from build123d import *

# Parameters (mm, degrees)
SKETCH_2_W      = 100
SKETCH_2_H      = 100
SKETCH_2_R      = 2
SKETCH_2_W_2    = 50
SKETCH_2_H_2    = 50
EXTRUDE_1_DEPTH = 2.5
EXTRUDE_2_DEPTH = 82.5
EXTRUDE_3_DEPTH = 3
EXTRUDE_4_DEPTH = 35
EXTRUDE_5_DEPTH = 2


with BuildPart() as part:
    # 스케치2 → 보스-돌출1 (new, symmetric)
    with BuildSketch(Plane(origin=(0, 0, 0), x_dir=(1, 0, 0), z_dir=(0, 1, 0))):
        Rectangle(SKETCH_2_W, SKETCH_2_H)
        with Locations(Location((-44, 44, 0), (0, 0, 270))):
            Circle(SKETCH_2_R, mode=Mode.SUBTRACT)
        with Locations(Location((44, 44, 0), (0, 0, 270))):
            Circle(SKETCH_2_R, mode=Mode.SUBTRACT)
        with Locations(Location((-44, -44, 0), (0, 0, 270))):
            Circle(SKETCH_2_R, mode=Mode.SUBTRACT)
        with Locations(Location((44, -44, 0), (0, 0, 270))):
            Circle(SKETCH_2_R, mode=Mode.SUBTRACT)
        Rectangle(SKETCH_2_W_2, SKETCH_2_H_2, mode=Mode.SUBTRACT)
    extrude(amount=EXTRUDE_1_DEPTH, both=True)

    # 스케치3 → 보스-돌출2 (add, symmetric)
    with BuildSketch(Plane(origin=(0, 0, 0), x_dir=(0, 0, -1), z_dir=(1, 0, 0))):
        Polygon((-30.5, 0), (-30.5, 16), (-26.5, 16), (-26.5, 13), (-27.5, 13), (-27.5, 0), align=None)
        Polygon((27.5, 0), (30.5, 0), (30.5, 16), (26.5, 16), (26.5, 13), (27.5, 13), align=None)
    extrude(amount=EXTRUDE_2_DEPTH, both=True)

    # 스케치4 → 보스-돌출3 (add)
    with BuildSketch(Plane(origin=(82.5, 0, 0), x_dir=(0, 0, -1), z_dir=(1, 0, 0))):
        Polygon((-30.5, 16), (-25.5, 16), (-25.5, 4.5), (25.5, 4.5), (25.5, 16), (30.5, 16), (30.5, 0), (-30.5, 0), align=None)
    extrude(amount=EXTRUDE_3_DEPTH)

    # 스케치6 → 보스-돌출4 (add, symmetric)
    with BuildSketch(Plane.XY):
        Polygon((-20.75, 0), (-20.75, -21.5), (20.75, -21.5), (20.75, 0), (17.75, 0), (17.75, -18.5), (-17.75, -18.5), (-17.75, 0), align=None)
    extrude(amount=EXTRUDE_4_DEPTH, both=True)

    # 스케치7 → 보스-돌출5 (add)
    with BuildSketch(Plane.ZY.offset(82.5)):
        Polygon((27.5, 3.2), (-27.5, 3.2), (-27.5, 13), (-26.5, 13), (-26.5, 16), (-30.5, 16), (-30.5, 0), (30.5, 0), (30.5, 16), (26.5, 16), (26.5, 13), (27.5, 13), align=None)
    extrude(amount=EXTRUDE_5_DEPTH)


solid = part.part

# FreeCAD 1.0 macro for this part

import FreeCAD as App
import Part
import Sketcher
from FreeCAD import Vector

doc = App.newDocument("Part")
body = doc.addObject("PartDesign::Body", "Body")

# Sketch on XZ plane
sketch1 = body.newObject("Sketcher::SketchObject", "Sketch")
sketch1.AttachmentSupport = (doc.getObject("XZ_Plane"), [""])
sketch1.MapMode = "FlatFace"
sketch1.addGeometry(Part.LineSegment(Vector(-50, -50, 0), Vector(-50, 50, 0)), False)
sketch1.addGeometry(Part.LineSegment(Vector(-50, 50, 0), Vector(50, 50, 0)), False)
sketch1.addGeometry(Part.LineSegment(Vector(50, 50, 0), Vector(50, -50, 0)), False)
sketch1.addGeometry(Part.LineSegment(Vector(50, -50, 0), Vector(-50, -50, 0)), False)
sketch1.addGeometry(Part.Circle(Vector(-44, 44, 0), Vector(0, 0, 1), 2), False)
sketch1.addGeometry(Part.Circle(Vector(44, 44, 0), Vector(0, 0, 1), 2), False)
sketch1.addGeometry(Part.Circle(Vector(-44, -44, 0), Vector(0, 0, 1), 2), False)
sketch1.addGeometry(Part.LineSegment(Vector(25, 25, 0), Vector(-25, 25, 0)), False)
sketch1.addGeometry(Part.LineSegment(Vector(-25, 25, 0), Vector(-25, -25, 0)), False)
sketch1.addGeometry(Part.LineSegment(Vector(-25, -25, 0), Vector(25, -25, 0)), False)
sketch1.addGeometry(Part.LineSegment(Vector(25, -25, 0), Vector(25, 25, 0)), False)
sketch1.addGeometry(Part.Circle(Vector(44, -44, 0), Vector(0, 0, 1), 2), False)
sketch1.addConstraint(Sketcher.Constraint("Coincident", 0, 2, 1, 1))
sketch1.addConstraint(Sketcher.Constraint("Coincident", 1, 2, 2, 1))
sketch1.addConstraint(Sketcher.Constraint("Coincident", 2, 2, 3, 1))
sketch1.addConstraint(Sketcher.Constraint("Coincident", 3, 2, 0, 1))
sketch1.addConstraint(Sketcher.Constraint("Coincident", 7, 2, 8, 1))
sketch1.addConstraint(Sketcher.Constraint("Coincident", 8, 2, 9, 1))
sketch1.addConstraint(Sketcher.Constraint("Coincident", 9, 2, 10, 1))
sketch1.addConstraint(Sketcher.Constraint("Coincident", 10, 2, 7, 1))
sketch1.addConstraint(Sketcher.Constraint("Vertical", 0))
sketch1.addConstraint(Sketcher.Constraint("Horizontal", 1))
sketch1.addConstraint(Sketcher.Constraint("Vertical", 2))
sketch1.addConstraint(Sketcher.Constraint("Horizontal", 3))
sketch1.addConstraint(Sketcher.Constraint("Horizontal", 7))
sketch1.addConstraint(Sketcher.Constraint("Vertical", 8))
sketch1.addConstraint(Sketcher.Constraint("Horizontal", 9))
sketch1.addConstraint(Sketcher.Constraint("Vertical", 10))
sketch1.addConstraint(Sketcher.Constraint("Equal", 4, 5))
sketch1.addConstraint(Sketcher.Constraint("Equal", 5, 6))
sketch1.addConstraint(Sketcher.Constraint("Equal", 6, 11))
sketch1.addConstraint(Sketcher.Constraint("Symmetric", 5, 3, 6, 3, -1, 1))
sketch1.addConstraint(Sketcher.Constraint("Symmetric", 4, 3, 11, 3, -1, 1))
sketch1.addConstraint(Sketcher.Constraint("Symmetric", 0, 2, 2, 2, -1, 1))
sketch1.addConstraint(Sketcher.Constraint("Symmetric", 7, 2, 9, 2, -1, 1))
sketch1.addConstraint(Sketcher.Constraint("Symmetric", 4, 3, 5, 3, -2))
sketch1.addConstraint(Sketcher.Constraint("Equal", 3, 0))
sketch1.addConstraint(Sketcher.Constraint("Equal", 9, 8))
sketch1.addConstraint(Sketcher.Constraint("Diameter", 4, 4.0))
sketch1.addConstraint(Sketcher.Constraint("DistanceX", 1, 1, 1, 2, 100.0))
sketch1.addConstraint(Sketcher.Constraint("DistanceX", 7, 2, 7, 1, 50.0))
sketch1.addConstraint(Sketcher.Constraint("DistanceX", 4, 3, -1, 1, 44.0))
sketch1.addConstraint(Sketcher.Constraint("DistanceY", -1, 1, 4, 3, 44.0))
pad1 = body.newObject("PartDesign::Pad", "Pad")
pad1.Profile = sketch1
pad1.Length = 5
pad1.Midplane = True

# Sketch on YZ plane
sketch2 = body.newObject("Sketcher::SketchObject", "Sketch001")
sketch2.AttachmentSupport = (doc.getObject("YZ_Plane"), [""])
sketch2.MapMode = "FlatFace"
sketch2.addGeometry(Part.LineSegment(Vector(16, 30.5, 0), Vector(0, 30.5, 0)), False)
sketch2.addGeometry(Part.LineSegment(Vector(0, 30.5, 0), Vector(0, 27.5, 0)), False)
sketch2.addGeometry(Part.LineSegment(Vector(0, 27.5, 0), Vector(13, 27.5, 0)), False)
sketch2.addGeometry(Part.LineSegment(Vector(13, 27.5, 0), Vector(13, 26.5, 0)), False)
sketch2.addGeometry(Part.LineSegment(Vector(13, 26.5, 0), Vector(16, 26.5, 0)), False)
sketch2.addGeometry(Part.LineSegment(Vector(16, 26.5, 0), Vector(16, 30.5, 0)), False)
sketch2.addGeometry(Part.LineSegment(Vector(0, -27.5, 0), Vector(0, -30.5, 0)), False)
sketch2.addGeometry(Part.LineSegment(Vector(0, -30.5, 0), Vector(16, -30.5, 0)), False)
sketch2.addGeometry(Part.LineSegment(Vector(16, -30.5, 0), Vector(16, -26.5, 0)), False)
sketch2.addGeometry(Part.LineSegment(Vector(16, -26.5, 0), Vector(13, -26.5, 0)), False)
sketch2.addGeometry(Part.LineSegment(Vector(13, -26.5, 0), Vector(13, -27.5, 0)), False)
sketch2.addGeometry(Part.LineSegment(Vector(13, -27.5, 0), Vector(0, -27.5, 0)), False)
sketch2.addConstraint(Sketcher.Constraint("Coincident", 0, 2, 1, 1))
sketch2.addConstraint(Sketcher.Constraint("Coincident", 1, 2, 2, 1))
sketch2.addConstraint(Sketcher.Constraint("Coincident", 2, 2, 3, 1))
sketch2.addConstraint(Sketcher.Constraint("Coincident", 3, 2, 4, 1))
sketch2.addConstraint(Sketcher.Constraint("Coincident", 4, 2, 5, 1))
sketch2.addConstraint(Sketcher.Constraint("Coincident", 5, 2, 0, 1))
sketch2.addConstraint(Sketcher.Constraint("Coincident", 6, 2, 7, 1))
sketch2.addConstraint(Sketcher.Constraint("Coincident", 7, 2, 8, 1))
sketch2.addConstraint(Sketcher.Constraint("Coincident", 8, 2, 9, 1))
sketch2.addConstraint(Sketcher.Constraint("Coincident", 9, 2, 10, 1))
sketch2.addConstraint(Sketcher.Constraint("Coincident", 10, 2, 11, 1))
sketch2.addConstraint(Sketcher.Constraint("Coincident", 11, 2, 6, 1))
sketch2.addConstraint(Sketcher.Constraint("Horizontal", 0))
sketch2.addConstraint(Sketcher.Constraint("Vertical", 1))
sketch2.addConstraint(Sketcher.Constraint("Horizontal", 2))
sketch2.addConstraint(Sketcher.Constraint("Vertical", 3))
sketch2.addConstraint(Sketcher.Constraint("Horizontal", 4))
sketch2.addConstraint(Sketcher.Constraint("Vertical", 5))
sketch2.addConstraint(Sketcher.Constraint("Vertical", 6))
sketch2.addConstraint(Sketcher.Constraint("Horizontal", 7))
sketch2.addConstraint(Sketcher.Constraint("Vertical", 8))
sketch2.addConstraint(Sketcher.Constraint("Horizontal", 9))
sketch2.addConstraint(Sketcher.Constraint("Vertical", 10))
sketch2.addConstraint(Sketcher.Constraint("Horizontal", 11))
sketch2.addConstraint(Sketcher.Constraint("Symmetric", 0, 2, 6, 2, -1, 1))
sketch2.addConstraint(Sketcher.Constraint("Symmetric", 4, 2, 8, 2, -1))
sketch2.addConstraint(Sketcher.Constraint("Symmetric", 2, 2, 10, 2, -1))
sketch2.addConstraint(Sketcher.Constraint("PointOnObject", 0, 2, -2))
sketch2.addConstraint(Sketcher.Constraint("Equal", 9, 1))
sketch2.addConstraint(Sketcher.Constraint("DistanceX", 0, 2, 0, 1, 16.0))
sketch2.addConstraint(Sketcher.Constraint("DistanceX", 2, 1, 2, 2, 13.0))
sketch2.addConstraint(Sketcher.Constraint("DistanceY", 3, 2, 3, 1, 1.0))
sketch2.addConstraint(Sketcher.Constraint("DistanceY", 6, 2, 1, 2, 58.0))
pad2 = body.newObject("PartDesign::Pad", "Pad001")
pad2.Profile = sketch2
pad2.Length = 165
pad2.Midplane = True

# Sketch on YZ plane
sketch3 = body.newObject("Sketcher::SketchObject", "Sketch002")
sketch3.AttachmentSupport = (doc.getObject("YZ_Plane"), [""])
sketch3.MapMode = "FlatFace"
sketch3.AttachmentOffset = App.Placement(Vector(0, 0, 82.5), App.Rotation())
sketch3.addGeometry(Part.LineSegment(Vector(16, 26, 0), Vector(16, 30, 0)), False)
sketch3.addGeometry(Part.LineSegment(Vector(16, 30, 0), Vector(0, 30, 0)), False)
sketch3.addGeometry(Part.LineSegment(Vector(0, 30, 0), Vector(0, -30, 0)), False)
sketch3.addGeometry(Part.LineSegment(Vector(0, -30, 0), Vector(16, -30, 0)), False)
sketch3.addGeometry(Part.LineSegment(Vector(16, -30, 0), Vector(16, -26, 0)), False)
sketch3.addGeometry(Part.LineSegment(Vector(16, -26, 0), Vector(4, -26, 0)), False)
sketch3.addGeometry(Part.LineSegment(Vector(4, -26, 0), Vector(4, 26, 0)), False)
sketch3.addGeometry(Part.LineSegment(Vector(4, 26, 0), Vector(16, 26, 0)), False)
sketch3.addConstraint(Sketcher.Constraint("Coincident", 0, 2, 1, 1))
sketch3.addConstraint(Sketcher.Constraint("Coincident", 1, 2, 2, 1))
sketch3.addConstraint(Sketcher.Constraint("Coincident", 2, 2, 3, 1))
sketch3.addConstraint(Sketcher.Constraint("Coincident", 3, 2, 4, 1))
sketch3.addConstraint(Sketcher.Constraint("Coincident", 4, 2, 5, 1))
sketch3.addConstraint(Sketcher.Constraint("Coincident", 5, 2, 6, 1))
sketch3.addConstraint(Sketcher.Constraint("Coincident", 6, 2, 7, 1))
sketch3.addConstraint(Sketcher.Constraint("Coincident", 7, 2, 0, 1))
sketch3.addConstraint(Sketcher.Constraint("Vertical", 0))
sketch3.addConstraint(Sketcher.Constraint("Horizontal", 1))
sketch3.addConstraint(Sketcher.Constraint("Vertical", 2))
sketch3.addConstraint(Sketcher.Constraint("Horizontal", 3))
sketch3.addConstraint(Sketcher.Constraint("Vertical", 4))
sketch3.addConstraint(Sketcher.Constraint("Horizontal", 5))
sketch3.addConstraint(Sketcher.Constraint("Vertical", 6))
sketch3.addConstraint(Sketcher.Constraint("Horizontal", 7))
sketch3.addConstraint(Sketcher.Constraint("Symmetric", 1, 2, 2, 2, -1, 1))
sketch3.addConstraint(Sketcher.Constraint("Symmetric", 4, 2, 7, 2, -1))
sketch3.addConstraint(Sketcher.Constraint("DistanceX", 1, 2, 1, 1, 16.0))
sketch3.addConstraint(Sketcher.Constraint("DistanceY", 0, 1, 0, 2, 5.0))
sketch3.addConstraint(Sketcher.Constraint("DistanceY", 2, 2, 2, 1, 61.0))
sketch3.addConstraint(Sketcher.Constraint("DistanceX", 5, 2, 5, 1, 11.5))
pad3 = body.newObject("PartDesign::Pad", "Pad002")
pad3.Profile = sketch3
pad3.Length = 3

# Sketch on XY plane
sketch4 = body.newObject("Sketcher::SketchObject", "Sketch003")
sketch4.AttachmentSupport = (doc.getObject("XY_Plane"), [""])
sketch4.MapMode = "FlatFace"
sketch4.addGeometry(Part.LineSegment(Vector(-20.8, 0, 0), Vector(-20.8, -21.5, 0)), False)
sketch4.addGeometry(Part.LineSegment(Vector(-20.8, -21.5, 0), Vector(20.8, -21.5, 0)), False)
sketch4.addGeometry(Part.LineSegment(Vector(20.8, -21.5, 0), Vector(20.8, 0, 0)), False)
sketch4.addGeometry(Part.LineSegment(Vector(20.8, 0, 0), Vector(17.8, 0, 0)), False)
sketch4.addGeometry(Part.LineSegment(Vector(17.8, 0, 0), Vector(17.8, -18.5, 0)), False)
sketch4.addGeometry(Part.LineSegment(Vector(17.8, -18.5, 0), Vector(-17.8, -18.5, 0)), False)
sketch4.addGeometry(Part.LineSegment(Vector(-17.8, -18.5, 0), Vector(-17.8, 0, 0)), False)
sketch4.addGeometry(Part.LineSegment(Vector(-17.8, 0, 0), Vector(-20.8, 0, 0)), False)
sketch4.addConstraint(Sketcher.Constraint("Coincident", 0, 2, 1, 1))
sketch4.addConstraint(Sketcher.Constraint("Coincident", 1, 2, 2, 1))
sketch4.addConstraint(Sketcher.Constraint("Coincident", 2, 2, 3, 1))
sketch4.addConstraint(Sketcher.Constraint("Coincident", 3, 2, 4, 1))
sketch4.addConstraint(Sketcher.Constraint("Coincident", 4, 2, 5, 1))
sketch4.addConstraint(Sketcher.Constraint("Coincident", 5, 2, 6, 1))
sketch4.addConstraint(Sketcher.Constraint("Coincident", 6, 2, 7, 1))
sketch4.addConstraint(Sketcher.Constraint("Coincident", 7, 2, 0, 1))
sketch4.addConstraint(Sketcher.Constraint("Vertical", 0))
sketch4.addConstraint(Sketcher.Constraint("Horizontal", 1))
sketch4.addConstraint(Sketcher.Constraint("Vertical", 2))
sketch4.addConstraint(Sketcher.Constraint("Horizontal", 3))
sketch4.addConstraint(Sketcher.Constraint("Vertical", 4))
sketch4.addConstraint(Sketcher.Constraint("Horizontal", 5))
sketch4.addConstraint(Sketcher.Constraint("Vertical", 6))
sketch4.addConstraint(Sketcher.Constraint("Horizontal", 7))
sketch4.addConstraint(Sketcher.Constraint("Symmetric", 3, 2, 6, 2, -1, 1))
sketch4.addConstraint(Sketcher.Constraint("Symmetric", 2, 2, 7, 2, -2))
sketch4.addConstraint(Sketcher.Constraint("DistanceX", 3, 2, 3, 1, 3.0))
sketch4.addConstraint(Sketcher.Constraint("DistanceX", 1, 1, 1, 2, 41.5))
sketch4.addConstraint(Sketcher.Constraint("DistanceY", 0, 2, 0, 1, 21.5))
sketch4.addConstraint(Sketcher.Constraint("DistanceY", 4, 2, 4, 1, 18.5))
pad4 = body.newObject("PartDesign::Pad", "Pad003")
pad4.Profile = sketch4
pad4.Length = 70
pad4.Midplane = True

# Sketch on YZ plane
sketch5 = body.newObject("Sketcher::SketchObject", "Sketch004")
sketch5.AttachmentSupport = (doc.getObject("YZ_Plane"), [""])
sketch5.MapMode = "FlatFace"
sketch5.AttachmentOffset = App.Placement(Vector(0, 0, -82.5), App.Rotation())
sketch5.addGeometry(Part.LineSegment(Vector(3.2, 27.5, 0), Vector(3.2, -27.5, 0)), False)
sketch5.addGeometry(Part.LineSegment(Vector(3.2, -27.5, 0), Vector(13, -27.5, 0)), False)
sketch5.addGeometry(Part.LineSegment(Vector(13, -27.5, 0), Vector(13, -26.5, 0)), False)
sketch5.addGeometry(Part.LineSegment(Vector(13, -26.5, 0), Vector(16, -26.5, 0)), False)
sketch5.addGeometry(Part.LineSegment(Vector(16, -26.5, 0), Vector(16, -30.5, 0)), False)
sketch5.addGeometry(Part.LineSegment(Vector(16, -30.5, 0), Vector(0, -30.5, 0)), False)
sketch5.addGeometry(Part.LineSegment(Vector(0, -30.5, 0), Vector(0, 30.5, 0)), False)
sketch5.addGeometry(Part.LineSegment(Vector(0, 30.5, 0), Vector(16, 30.5, 0)), False)
sketch5.addGeometry(Part.LineSegment(Vector(16, 30.5, 0), Vector(16, 26.5, 0)), False)
sketch5.addGeometry(Part.LineSegment(Vector(16, 26.5, 0), Vector(13, 26.5, 0)), False)
sketch5.addGeometry(Part.LineSegment(Vector(13, 26.5, 0), Vector(13, 27.5, 0)), False)
sketch5.addGeometry(Part.LineSegment(Vector(13, 27.5, 0), Vector(3.2, 27.5, 0)), False)
sketch5.addConstraint(Sketcher.Constraint("Coincident", 0, 2, 1, 1))
sketch5.addConstraint(Sketcher.Constraint("Coincident", 1, 2, 2, 1))
sketch5.addConstraint(Sketcher.Constraint("Coincident", 2, 2, 3, 1))
sketch5.addConstraint(Sketcher.Constraint("Coincident", 3, 2, 4, 1))
sketch5.addConstraint(Sketcher.Constraint("Coincident", 4, 2, 5, 1))
sketch5.addConstraint(Sketcher.Constraint("Coincident", 5, 2, 6, 1))
sketch5.addConstraint(Sketcher.Constraint("Coincident", 6, 2, 7, 1))
sketch5.addConstraint(Sketcher.Constraint("Coincident", 7, 2, 8, 1))
sketch5.addConstraint(Sketcher.Constraint("Coincident", 8, 2, 9, 1))
sketch5.addConstraint(Sketcher.Constraint("Coincident", 9, 2, 10, 1))
sketch5.addConstraint(Sketcher.Constraint("Coincident", 10, 2, 11, 1))
sketch5.addConstraint(Sketcher.Constraint("Coincident", 11, 2, 0, 1))
sketch5.addConstraint(Sketcher.Constraint("Vertical", 0))
sketch5.addConstraint(Sketcher.Constraint("Horizontal", 1))
sketch5.addConstraint(Sketcher.Constraint("Vertical", 2))
sketch5.addConstraint(Sketcher.Constraint("Horizontal", 3))
sketch5.addConstraint(Sketcher.Constraint("Vertical", 4))
sketch5.addConstraint(Sketcher.Constraint("Horizontal", 5))
sketch5.addConstraint(Sketcher.Constraint("Vertical", 6))
sketch5.addConstraint(Sketcher.Constraint("Horizontal", 7))
sketch5.addConstraint(Sketcher.Constraint("Vertical", 8))
sketch5.addConstraint(Sketcher.Constraint("Horizontal", 9))
sketch5.addConstraint(Sketcher.Constraint("Vertical", 10))
sketch5.addConstraint(Sketcher.Constraint("Horizontal", 11))
sketch5.addConstraint(Sketcher.Constraint("Symmetric", 5, 2, 6, 2, -1, 1))
sketch5.addConstraint(Sketcher.Constraint("Symmetric", 3, 2, 8, 2, -1))
sketch5.addConstraint(Sketcher.Constraint("Symmetric", 1, 2, 10, 2, -1))
sketch5.addConstraint(Sketcher.Constraint("DistanceX", 3, 1, 3, 2, 3.0))
sketch5.addConstraint(Sketcher.Constraint("DistanceX", 5, 2, 5, 1, 16.0))
sketch5.addConstraint(Sketcher.Constraint("DistanceY", 0, 2, 0, 1, 55.0))
sketch5.addConstraint(Sketcher.Constraint("DistanceY", 2, 1, 2, 2, 1.0))
sketch5.addConstraint(Sketcher.Constraint("DistanceY", 4, 2, 4, 1, 4.0))
sketch5.addConstraint(Sketcher.Constraint("DistanceX", 1, 1, 1, 2, 9.8))
pad5 = body.newObject("PartDesign::Pad", "Pad004")
pad5.Profile = sketch5
pad5.Length = 2
pad5.Reversed = True

doc.recompute()
